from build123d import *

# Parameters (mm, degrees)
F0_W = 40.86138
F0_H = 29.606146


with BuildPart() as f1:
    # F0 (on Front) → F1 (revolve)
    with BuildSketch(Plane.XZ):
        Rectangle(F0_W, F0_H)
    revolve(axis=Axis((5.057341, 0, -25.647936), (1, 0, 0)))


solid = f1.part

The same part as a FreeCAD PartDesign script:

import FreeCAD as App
import Part
import Sketcher
from FreeCAD import Vector

doc = App.newDocument("Part")
body = doc.addObject("PartDesign::Body", "Body")

sketch1 = doc.addObject("Sketcher::SketchObject", "Sketch")
body.addObject(sketch1)
sketch1.AttachmentSupport = (doc.XZ_Plane, [""])
sketch1.MapMode = "FlatFace"
sketch1.addGeometry([
    Part.LineSegment(Vector(-20, 15, 0), Vector(-20, -15, 0)),
    Part.LineSegment(Vector(-20, -15, 0), Vector(20, -15, 0)),
    Part.LineSegment(Vector(20, -15, 0), Vector(20, 15, 0)),
    Part.LineSegment(Vector(20, 15, 0), Vector(-20, 15, 0)),
], False)
sketch1.addGeometry(Part.LineSegment(Vector(-20, -26, 0), Vector(20, -26, 0)), True)
sketch1.addConstraint([
    Sketcher.Constraint("Coincident", 0, 2, 1, 1),
    Sketcher.Constraint("Coincident", 1, 2, 2, 1),
    Sketcher.Constraint("Coincident", 2, 2, 3, 1),
    Sketcher.Constraint("Coincident", 3, 2, 0, 1),
    Sketcher.Constraint("Vertical", 0),
    Sketcher.Constraint("Horizontal", 1),
    Sketcher.Constraint("Vertical", 2),
    Sketcher.Constraint("Horizontal", 3),
    Sketcher.Constraint("Horizontal", 4),
    Sketcher.Constraint("Symmetric", 0, 2, 2, 2, -1, 1),
    Sketcher.Constraint("Vertical", 3, 2, 4, 1),
    Sketcher.Constraint("Vertical", 2, 2, 4, 2),
    Sketcher.Constraint("DistanceX", 1, 1, 1, 2, 40.86138),
    Sketcher.Constraint("DistanceY", 0, 2, 0, 1, 29.606146),
    Sketcher.Constraint("DistanceY", 4, 1, 3, 2, 40.451009),
])
revolution = doc.addObject("PartDesign::Revolution", "Revolution")
body.addObject(revolution)
revolution.Profile = sketch1
revolution.ReferenceAxis = (sketch1, ["Axis0"])
revolution.Angle = 360

doc.recompute()
